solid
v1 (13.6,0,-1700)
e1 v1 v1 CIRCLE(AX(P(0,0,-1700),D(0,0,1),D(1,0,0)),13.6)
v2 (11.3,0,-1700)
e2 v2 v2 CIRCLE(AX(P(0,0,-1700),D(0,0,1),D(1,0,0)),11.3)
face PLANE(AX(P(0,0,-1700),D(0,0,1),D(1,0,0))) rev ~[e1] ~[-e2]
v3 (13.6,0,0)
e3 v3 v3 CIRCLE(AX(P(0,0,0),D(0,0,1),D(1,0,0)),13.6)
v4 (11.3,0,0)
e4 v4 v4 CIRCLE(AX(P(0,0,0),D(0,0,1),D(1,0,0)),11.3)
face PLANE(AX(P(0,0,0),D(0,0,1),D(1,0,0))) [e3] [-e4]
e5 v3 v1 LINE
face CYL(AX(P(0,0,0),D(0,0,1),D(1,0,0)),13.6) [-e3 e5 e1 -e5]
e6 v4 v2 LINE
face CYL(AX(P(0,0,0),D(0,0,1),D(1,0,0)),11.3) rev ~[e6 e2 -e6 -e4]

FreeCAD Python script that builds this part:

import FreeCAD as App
import Part
import Sketcher
from FreeCAD import Vector
Q = App.Units.Quantity

doc = App.newDocument("Part")
body = doc.addObject("PartDesign::Body", "Body")

sketch1 = body.newObject("Sketcher::SketchObject", "Sketch")
sketch1.AttachmentSupport = (doc.getObject("XY_Plane"), [""])
sketch1.MapMode = "FlatFace"
sketch1.addGeometry(Part.Circle(Vector(0, 0, 0), Vector(0, 0, 1), 14), False)
sketch1.addConstraint([
    Sketcher.Constraint("Coincident", 0, 3, -1, 1),
    Sketcher.Constraint("Diameter", 0, Q("27.2 mm")),
])
pad1 = body.newObject("PartDesign::Pad", "Pad")
pad1.Profile = sketch1
pad1.Length = 1700
pad1.Reversed = True

sketch2 = body.newObject("Sketcher::SketchObject", "Sketch001")
sketch2.AttachmentSupport = (doc.getObject("XY_Plane"), [""])
sketch2.MapMode = "FlatFace"
sketch2.addGeometry(Part.Circle(Vector(0, 0, 0), Vector(0, 0, 1), 11), False)
sketch2.addConstraint([
    Sketcher.Constraint("Coincident", 0, 3, -1, 1),
    Sketcher.Constraint("Diameter", 0, Q("22.6 mm")),
])
pocket1 = body.newObject("PartDesign::Pocket", "Pocket")
pocket1.Profile = sketch2
pocket1.Length = 1700

doc.recompute()
